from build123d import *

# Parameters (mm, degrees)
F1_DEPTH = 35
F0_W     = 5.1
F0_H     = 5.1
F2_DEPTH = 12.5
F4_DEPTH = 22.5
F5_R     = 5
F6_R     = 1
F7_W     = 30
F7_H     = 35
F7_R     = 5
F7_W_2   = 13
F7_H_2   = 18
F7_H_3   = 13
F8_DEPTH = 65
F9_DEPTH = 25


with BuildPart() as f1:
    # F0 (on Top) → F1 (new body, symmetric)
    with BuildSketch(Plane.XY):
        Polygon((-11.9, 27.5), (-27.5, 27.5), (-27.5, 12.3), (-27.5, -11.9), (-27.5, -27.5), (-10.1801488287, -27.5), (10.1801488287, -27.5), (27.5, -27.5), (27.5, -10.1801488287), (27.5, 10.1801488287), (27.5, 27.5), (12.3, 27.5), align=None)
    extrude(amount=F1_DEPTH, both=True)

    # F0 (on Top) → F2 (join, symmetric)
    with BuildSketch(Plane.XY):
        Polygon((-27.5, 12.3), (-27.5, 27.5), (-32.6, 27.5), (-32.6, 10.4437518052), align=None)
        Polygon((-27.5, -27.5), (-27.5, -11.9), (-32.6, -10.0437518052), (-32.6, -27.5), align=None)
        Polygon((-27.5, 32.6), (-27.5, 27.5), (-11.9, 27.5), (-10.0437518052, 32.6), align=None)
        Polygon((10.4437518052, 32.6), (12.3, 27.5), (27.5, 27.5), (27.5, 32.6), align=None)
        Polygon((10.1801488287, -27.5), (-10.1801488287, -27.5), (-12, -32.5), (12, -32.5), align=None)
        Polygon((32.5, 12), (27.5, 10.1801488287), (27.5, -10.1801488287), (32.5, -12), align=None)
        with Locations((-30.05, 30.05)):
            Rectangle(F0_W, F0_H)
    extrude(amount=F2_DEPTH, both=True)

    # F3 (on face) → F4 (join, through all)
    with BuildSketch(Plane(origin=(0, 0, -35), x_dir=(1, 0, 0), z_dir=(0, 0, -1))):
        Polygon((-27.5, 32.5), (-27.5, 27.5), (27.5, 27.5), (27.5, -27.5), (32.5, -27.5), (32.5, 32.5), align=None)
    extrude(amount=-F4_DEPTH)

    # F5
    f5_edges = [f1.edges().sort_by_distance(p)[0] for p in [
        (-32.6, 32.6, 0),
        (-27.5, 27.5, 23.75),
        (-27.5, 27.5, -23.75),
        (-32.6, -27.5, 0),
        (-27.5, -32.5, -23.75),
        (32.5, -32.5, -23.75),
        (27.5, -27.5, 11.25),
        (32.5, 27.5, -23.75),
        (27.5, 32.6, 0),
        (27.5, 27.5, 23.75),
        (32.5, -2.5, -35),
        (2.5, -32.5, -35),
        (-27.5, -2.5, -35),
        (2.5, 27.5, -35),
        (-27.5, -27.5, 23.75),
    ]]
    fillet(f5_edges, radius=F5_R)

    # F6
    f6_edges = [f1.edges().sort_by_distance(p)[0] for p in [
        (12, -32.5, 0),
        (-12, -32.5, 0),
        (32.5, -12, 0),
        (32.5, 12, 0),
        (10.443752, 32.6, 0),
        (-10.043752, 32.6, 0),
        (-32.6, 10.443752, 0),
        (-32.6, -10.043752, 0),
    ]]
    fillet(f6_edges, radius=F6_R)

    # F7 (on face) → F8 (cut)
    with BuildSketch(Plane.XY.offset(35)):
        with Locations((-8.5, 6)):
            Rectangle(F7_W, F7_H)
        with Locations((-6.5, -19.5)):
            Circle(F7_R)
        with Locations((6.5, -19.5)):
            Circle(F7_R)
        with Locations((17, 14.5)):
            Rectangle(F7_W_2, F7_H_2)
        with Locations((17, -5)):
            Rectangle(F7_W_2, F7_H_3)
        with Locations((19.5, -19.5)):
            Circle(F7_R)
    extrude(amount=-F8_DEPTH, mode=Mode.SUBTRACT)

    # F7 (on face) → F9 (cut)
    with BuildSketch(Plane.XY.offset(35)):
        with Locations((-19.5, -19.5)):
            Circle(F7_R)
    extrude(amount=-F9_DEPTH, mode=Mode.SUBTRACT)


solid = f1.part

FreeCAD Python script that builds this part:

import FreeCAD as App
import Part
import Sketcher

V = App.Vector
Q = App.Units.Quantity


def edges_at(feature, points):
    """Names of the edges that pass closest to the given points."""
    edges = feature.Shape.Edges
    near = lambda p: min(range(len(edges)), key=lambda i: edges[i].distToShape(Part.Vertex(*p))[0])
    return sorted({f"Edge{near(p) + 1}" for p in points})

doc = App.newDocument("Part")
body = doc.addObject("PartDesign::Body", "Body")

# Sketch on XY plane
sketch1 = doc.addObject("Sketcher::SketchObject", "Sketch")
body.addObject(sketch1)
sketch1.AttachmentSupport = (doc.XY_Plane, [""])
sketch1.MapMode = "FlatFace"
sketch1.addGeometry(Part.LineSegment(V(-28, 28, 0), V(-28, -28, 0)), False)
sketch1.addGeometry(Part.LineSegment(V(-28, -28, 0), V(28, -28, 0)), False)
sketch1.addGeometry(Part.LineSegment(V(28, -28, 0), V(28, 28, 0)), False)
sketch1.addGeometry(Part.LineSegment(V(28, 28, 0), V(-28, 28, 0)), False)
sketch1.addConstraint(Sketcher.Constraint("Coincident", 0, 2, 1, 1))
sketch1.addConstraint(Sketcher.Constraint("Coincident", 1, 2, 2, 1))
sketch1.addConstraint(Sketcher.Constraint("Coincident", 2, 2, 3, 1))
sketch1.addConstraint(Sketcher.Constraint("Coincident", 3, 2, 0, 1))
sketch1.addConstraint(Sketcher.Constraint("Vertical", 0))
sketch1.addConstraint(Sketcher.Constraint("Horizontal", 1))
sketch1.addConstraint(Sketcher.Constraint("Vertical", 2))
sketch1.addConstraint(Sketcher.Constraint("Horizontal", 3))
sketch1.addConstraint(Sketcher.Constraint("Symmetric", 0, 2, 2, 2, -1, 1))
sketch1.addConstraint(Sketcher.Constraint("Equal", 3, 0))
sketch1.addConstraint(Sketcher.Constraint("DistanceX", 1, 1, 1, 2, Q("55 mm")))
pad1 = doc.addObject("PartDesign::Pad", "Pad")
body.addObject(pad1)
pad1.Profile = sketch1
pad1.Length = 70
pad1.Midplane = True

# Sketch on XY plane
sketch2 = doc.addObject("Sketcher::SketchObject", "Sketch001")
body.addObject(sketch2)
sketch2.AttachmentSupport = (doc.XY_Plane, [""])
sketch2.MapMode = "FlatFace"
sketch2.addGeometry(Part.LineSegment(V(-28, 12, 0), V(-28, 28, 0)), False)
sketch2.addGeometry(Part.LineSegment(V(-28, 28, 0), V(-12, 28, 0)), False)
sketch2.addGeometry(Part.LineSegment(V(-12, 28, 0), V(-10, 33, 0)), False)
sketch2.addGeometry(Part.LineSegment(V(-10, 33, 0), V(-33, 33, 0)), False)
sketch2.addGeometry(Part.LineSegment(V(-33, 33, 0), V(-33, 10, 0)), False)
sketch2.addGeometry(Part.LineSegment(V(-33, 10, 0), V(-28, 12, 0)), False)
sketch2.addGeometry(Part.LineSegment(V(-28, -28, 0), V(-28, -12, 0)), False)
sketch2.addGeometry(Part.LineSegment(V(-28, -12, 0), V(-33, -10, 0)), False)
sketch2.addGeometry(Part.LineSegment(V(-33, -10, 0), V(-33, -28, 0)), False)
sketch2.addGeometry(Part.LineSegment(V(-33, -28, 0), V(-28, -28, 0)), False)
sketch2.addGeometry(Part.LineSegment(V(10, 33, 0), V(12, 28, 0)), False)
sketch2.addGeometry(Part.LineSegment(V(12, 28, 0), V(28, 28, 0)), False)
sketch2.addGeometry(Part.LineSegment(V(28, 28, 0), V(28, 33, 0)), False)
sketch2.addGeometry(Part.LineSegment(V(28, 33, 0), V(10, 33, 0)), False)
sketch2.addGeometry(Part.LineSegment(V(10, -28, 0), V(-10, -28, 0)), False)
sketch2.addGeometry(Part.LineSegment(V(-10, -28, 0), V(-12, -32, 0)), False)
sketch2.addGeometry(Part.LineSegment(V(-12, -32, 0), V(12, -32, 0)), False)
sketch2.addGeometry(Part.LineSegment(V(12, -32, 0), V(10, -28, 0)), False)
sketch2.addGeometry(Part.LineSegment(V(32, 12, 0), V(28, 10, 0)), False)
sketch2.addGeometry(Part.LineSegment(V(28, 10, 0), V(28, -10, 0)), False)
sketch2.addGeometry(Part.LineSegment(V(28, -10, 0), V(32, -12, 0)), False)
sketch2.addGeometry(Part.LineSegment(V(32, -12, 0), V(32, 12, 0)), False)
sketch2.addConstraint(Sketcher.Constraint("Coincident", 0, 2, 1, 1))
sketch2.addConstraint(Sketcher.Constraint("Coincident", 1, 2, 2, 1))
sketch2.addConstraint(Sketcher.Constraint("Coincident", 2, 2, 3, 1))
sketch2.addConstraint(Sketcher.Constraint("Coincident", 3, 2, 4, 1))
sketch2.addConstraint(Sketcher.Constraint("Coincident", 4, 2, 5, 1))
sketch2.addConstraint(Sketcher.Constraint("Coincident", 5, 2, 0, 1))
sketch2.addConstraint(Sketcher.Constraint("Coincident", 6, 2, 7, 1))
sketch2.addConstraint(Sketcher.Constraint("Coincident", 7, 2, 8, 1))
sketch2.addConstraint(Sketcher.Constraint("Coincident", 8, 2, 9, 1))
sketch2.addConstraint(Sketcher.Constraint("Coincident", 9, 2, 6, 1))
sketch2.addConstraint(Sketcher.Constraint("Coincident", 10, 2, 11, 1))
sketch2.addConstraint(Sketcher.Constraint("Coincident", 11, 2, 12, 1))
sketch2.addConstraint(Sketcher.Constraint("Coincident", 12, 2, 13, 1))
sketch2.addConstraint(Sketcher.Constraint("Coincident", 13, 2, 10, 1))
sketch2.addConstraint(Sketcher.Constraint("Coincident", 14, 2, 15, 1))
sketch2.addConstraint(Sketcher.Constraint("Coincident", 15, 2, 16, 1))
sketch2.addConstraint(Sketcher.Constraint("Coincident", 16, 2, 17, 1))
sketch2.addConstraint(Sketcher.Constraint("Coincident", 17, 2, 14, 1))
sketch2.addConstraint(Sketcher.Constraint("Coincident", 18, 2, 19, 1))
sketch2.addConstraint(Sketcher.Constraint("Coincident", 19, 2, 20, 1))
sketch2.addConstraint(Sketcher.Constraint("Coincident", 20, 2, 21, 1))
sketch2.addConstraint(Sketcher.Constraint("Coincident", 21, 2, 18, 1))
sketch2.addConstraint(Sketcher.Constraint("Vertical", 0))
sketch2.addConstraint(Sketcher.Constraint("Horizontal", 1))
sketch2.addConstraint(Sketcher.Constraint("Horizontal", 3))
sketch2.addConstraint(Sketcher.Constraint("Vertical", 4))
sketch2.addConstraint(Sketcher.Constraint("Vertical", 6))
sketch2.addConstraint(Sketcher.Constraint("Vertical", 8))
sketch2.addConstraint(Sketcher.Constraint("Horizontal", 9))
sketch2.addConstraint(Sketcher.Constraint("Horizontal", 11))
sketch2.addConstraint(Sketcher.Constraint("Vertical", 12))
sketch2.addConstraint(Sketcher.Constraint("Horizontal", 13))
sketch2.addConstraint(Sketcher.Constraint("Horizontal", 14))
sketch2.addConstraint(Sketcher.Constraint("Horizontal", 16))
sketch2.addConstraint(Sketcher.Constraint("Vertical", 19))
sketch2.addConstraint(Sketcher.Constraint("Vertical", 21))
sketch2.addConstraint(Sketcher.Constraint("Symmetric", 9, 2, 11, 2, -1, 1))
sketch2.addConstraint(Sketcher.Constraint("Symmetric", 0, 2, 11, 2, -2))
sketch2.addConstraint(Sketcher.Constraint("Perpendicular", 2, 7))
sketch2.addConstraint(Sketcher.Constraint("Perpendicular", 5, 10))
sketch2.addConstraint(Sketcher.Constraint("Perpendicular", 7, 15))
sketch2.addConstraint(Sketcher.Constraint("Parallel", 10, 17))
sketch2.addConstraint(Sketcher.Constraint("Perpendicular", 17, 18))
sketch2.addConstraint(Sketcher.Constraint("Perpendicular", 15, 20))
sketch2.addConstraint(Sketcher.Constraint("Horizontal", 3, 2, 12, 2))
sketch2.addConstraint(Sketcher.Constraint("Horizontal", 9, 2, 14, 2))
sketch2.addConstraint(Sketcher.Constraint("Vertical", 4, 2, 7, 2))
sketch2.addConstraint(Sketcher.Constraint("Vertical", 12, 2, 18, 2))
sketch2.addConstraint(Sketcher.Constraint("Equal", 11, 0))
sketch2.addConstraint(Sketcher.Constraint("Equal", 1, 6))
sketch2.addConstraint(Sketcher.Constraint("Equal", 9, 12))
sketch2.addConstraint(Sketcher.Constraint("Equal", 14, 19))
sketch2.addConstraint(Sketcher.Constraint("Equal", 16, 21))
sketch2.addConstraint(Sketcher.Constraint("Equal", 2, 5))
sketch2.addConstraint(Sketcher.Constraint("DistanceX", 16, 1, 16, 2, Q("24 mm")))
sketch2.addConstraint(Sketcher.Constraint("Angle", 2, Q("70 deg")))
sketch2.addConstraint(Sketcher.Constraint("DistanceX", 1, 1, 1, 2, Q("15.6 mm")))
sketch2.addConstraint(Sketcher.Constraint("DistanceX", 9, 1, 9, 2, Q("5.1 mm")))
sketch2.addConstraint(Sketcher.Constraint("DistanceX", 11, 1, 11, 2, Q("15.2 mm")))
sketch2.addConstraint(Sketcher.Constraint("DistanceX", 15, 2, -1, 1, Q("12 mm")))
sketch2.addConstraint(Sketcher.Constraint("DistanceY", 20, 2, -1, 1, Q("12 mm")))
sketch2.addConstraint(Sketcher.Constraint("DistanceY", 8, 2, 0, 2, Q("55 mm")))
sketch2.addConstraint(Sketcher.Constraint("DistanceX", 0, 2, 11, 2, Q("55 mm")))
sketch2.addConstraint(Sketcher.Constraint("DistanceY", 15, 2, 14, 2, Q("5 mm")))
pad2 = doc.addObject("PartDesign::Pad", "Pad001")
body.addObject(pad2)
pad2.Profile = sketch2
pad2.Length = 25
pad2.Midplane = True

# Sketch on XY plane
sketch3 = doc.addObject("Sketcher::SketchObject", "Sketch002")
body.addObject(sketch3)
sketch3.AttachmentSupport = (doc.XY_Plane, [""])
sketch3.MapMode = "FlatFace"
sketch3.AttachmentOffset = App.Placement(V(0, 0, -35), App.Rotation())
sketch3.addGeometry(Part.LineSegment(V(-28, -32, 0), V(-28, -28, 0)), False)
sketch3.addGeometry(Part.LineSegment(V(-28, -28, 0), V(28, -28, 0)), False)
sketch3.addGeometry(Part.LineSegment(V(28, -28, 0), V(28, 28, 0)), False)
sketch3.addGeometry(Part.LineSegment(V(28, 28, 0), V(32, 28, 0)), False)
sketch3.addGeometry(Part.LineSegment(V(32, 28, 0), V(32, -32, 0)), False)
sketch3.addGeometry(Part.LineSegment(V(32, -32, 0), V(-28, -32, 0)), False)
sketch3.addConstraint(Sketcher.Constraint("Coincident", 0, 2, 1, 1))
sketch3.addConstraint(Sketcher.Constraint("Coincident", 1, 2, 2, 1))
sketch3.addConstraint(Sketcher.Constraint("Coincident", 2, 2, 3, 1))
sketch3.addConstraint(Sketcher.Constraint("Coincident", 3, 2, 4, 1))
sketch3.addConstraint(Sketcher.Constraint("Coincident", 4, 2, 5, 1))
sketch3.addConstraint(Sketcher.Constraint("Coincident", 5, 2, 0, 1))
sketch3.addConstraint(Sketcher.Constraint("Vertical", 0))
sketch3.addConstraint(Sketcher.Constraint("Horizontal", 1))
sketch3.addConstraint(Sketcher.Constraint("Vertical", 2))
sketch3.addConstraint(Sketcher.Constraint("Horizontal", 3))
sketch3.addConstraint(Sketcher.Constraint("Vertical", 4))
sketch3.addConstraint(Sketcher.Constraint("Horizontal", 5))
sketch3.addConstraint(Sketcher.Constraint("Symmetric", 0, 2, 2, 2, -1, 1))
sketch3.addConstraint(Sketcher.Constraint("Equal", 3, 0))
sketch3.addConstraint(Sketcher.Constraint("Equal", 1, 2))
sketch3.addConstraint(Sketcher.Constraint("DistanceX", 1, 1, 1, 2, Q("55 mm")))
sketch3.addConstraint(Sketcher.Constraint("DistanceX", 3, 1, 3, 2, Q("5 mm")))
pad3 = doc.addObject("PartDesign::Pad", "Pad002")
body.addObject(pad3)
pad3.Profile = sketch3
pad3.Length = 22.5
doc.recompute()

fillet = doc.addObject("PartDesign::Fillet", "Fillet")
body.addObject(fillet)
fillet.Base = (pad3, edges_at(pad3, [
    (-32.6, 32.6, 0),
    (-27.5, 27.5, 23.75),
    (-27.5, 27.5, -23.75),
    (-32.6, -27.5, 0),
    (-27.5, -32.5, -23.75),
    (32.5, -32.5, -23.75),
    (27.5, -27.5, 11.25),
    (32.5, 27.5, -23.75),
    (27.5, 32.6, 0),
    (27.5, 27.5, 23.75),
    (32.5, -2.5, -35),
    (2.5, -32.5, -35),
    (-27.5, -2.5, -35),
    (2.5, 27.5, -35),
    (-27.5, -27.5, 23.75),
]))
fillet.Radius = 5
doc.recompute()

fillet2 = doc.addObject("PartDesign::Fillet", "Fillet001")
body.addObject(fillet2)
fillet2.Base = (fillet, edges_at(fillet, [
    (12, -32.5, 0),
    (-12, -32.5, 0),
    (32.5, -12, 0),
    (32.5, 12, 0),
    (10.444, 32.6, 0),
    (-10.044, 32.6, 0),
    (-32.6, 10.444, 0),
    (-32.6, -10.044, 0),
]))
fillet2.Radius = 1

# Sketch on XY plane
sketch4 = doc.addObject("Sketcher::SketchObject", "Sketch003")
body.addObject(sketch4)
sketch4.AttachmentSupport = (doc.XY_Plane, [""])
sketch4.MapMode = "FlatFace"
sketch4.AttachmentOffset = App.Placement(V(0, 0, 35), App.Rotation())
sketch4.addGeometry(Part.LineSegment(V(-24, 24, 0), V(-24, -12, 0)), False)
sketch4.addGeometry(Part.LineSegment(V(-24, -12, 0), V(6, -12, 0)), False)
sketch4.addGeometry(Part.LineSegment(V(6, -12, 0), V(6, 24, 0)), False)
sketch4.addGeometry(Part.LineSegment(V(6, 24, 0), V(-24, 24, 0)), False)
sketch4.addGeometry(Part.Circle(V(-6, -20, 0), V(0, 0, 1), 5), False)
sketch4.addGeometry(Part.Circle(V(6, -20, 0), V(0, 0, 1), 5), False)
sketch4.addGeometry(Part.LineSegment(V(10, 24, 0), V(10, 6, 0)), False)
sketch4.addGeometry(Part.LineSegment(V(10, 6, 0), V(24, 6, 0)), False)
sketch4.addGeometry(Part.LineSegment(V(24, 6, 0), V(24, 24, 0)), False)
sketch4.addGeometry(Part.LineSegment(V(24, 24, 0), V(10, 24, 0)), False)
sketch4.addGeometry(Part.LineSegment(V(10, 2, 0), V(10, -12, 0)), False)
sketch4.addGeometry(Part.LineSegment(V(10, -12, 0), V(24, -12, 0)), False)
sketch4.addGeometry(Part.LineSegment(V(24, -12, 0), V(24, 2, 0)), False)
sketch4.addGeometry(Part.LineSegment(V(24, 2, 0), V(10, 2, 0)), False)
sketch4.addGeometry(Part.Circle(V(20, -20, 0), V(0, 0, 1), 5), False)
sketch4.addConstraint(Sketcher.Constraint("Coincident", 0, 2, 1, 1))
sketch4.addConstraint(Sketcher.Constraint("Coincident", 1, 2, 2, 1))
sketch4.addConstraint(Sketcher.Constraint("Coincident", 2, 2, 3, 1))
sketch4.addConstraint(Sketcher.Constraint("Coincident", 3, 2, 0, 1))
sketch4.addConstraint(Sketcher.Constraint("Coincident", 6, 2, 7, 1))
sketch4.addConstraint(Sketcher.Constraint("Coincident", 7, 2, 8, 1))
sketch4.addConstraint(Sketcher.Constraint("Coincident", 8, 2, 9, 1))
sketch4.addConstraint(Sketcher.Constraint("Coincident", 9, 2, 6, 1))
sketch4.addConstraint(Sketcher.Constraint("Coincident", 10, 2, 11, 1))
sketch4.addConstraint(Sketcher.Constraint("Coincident", 11, 2, 12, 1))
sketch4.addConstraint(Sketcher.Constraint("Coincident", 12, 2, 13, 1))
sketch4.addConstraint(Sketcher.Constraint("Coincident", 13, 2, 10, 1))
sketch4.addConstraint(Sketcher.Constraint("Vertical", 0))
sketch4.addConstraint(Sketcher.Constraint("Horizontal", 1))
sketch4.addConstraint(Sketcher.Constraint("Vertical", 2))
sketch4.addConstraint(Sketcher.Constraint("Horizontal", 3))
sketch4.addConstraint(Sketcher.Constraint("Vertical", 6))
sketch4.addConstraint(Sketcher.Constraint("Horizontal", 7))
sketch4.addConstraint(Sketcher.Constraint("Vertical", 8))
sketch4.addConstraint(Sketcher.Constraint("Horizontal", 9))
sketch4.addConstraint(Sketcher.Constraint("Vertical", 10))
sketch4.addConstraint(Sketcher.Constraint("Horizontal", 11))
sketch4.addConstraint(Sketcher.Constraint("Vertical", 12))
sketch4.addConstraint(Sketcher.Constraint("Horizontal", 13))
sketch4.addConstraint(Sketcher.Constraint("Equal", 4, 5))
sketch4.addConstraint(Sketcher.Constraint("Equal", 5, 14))
sketch4.addConstraint(Sketcher.Constraint("Symmetric", 4, 3, 5, 3, -2))
sketch4.addConstraint(Sketcher.Constraint("Symmetric", 3, 2, 8, 2, -2))
sketch4.addConstraint(Sketcher.Constraint("Symmetric", 0, 2, 11, 2, -2))
sketch4.addConstraint(Sketcher.Constraint("Horizontal", 5, 3, 14, 3))
sketch4.addConstraint(Sketcher.Constraint("Vertical", 5, 3, 1, 2))
sketch4.addConstraint(Sketcher.Constraint("Vertical", 9, 2, 10, 2))
sketch4.addConstraint(Sketcher.Constraint("Equal", 13, 10))
sketch4.addConstraint(Sketcher.Constraint("Diameter", 4, Q("10 mm")))
sketch4.addConstraint(Sketcher.Constraint("DistanceX", 1, 1, 1, 2, Q("30 mm")))
sketch4.addConstraint(Sketcher.Constraint("DistanceX", 7, 1, 7, 2, Q("13 mm")))
sketch4.addConstraint(Sketcher.Constraint("DistanceY", 0, 2, 0, 1, Q("35 mm")))
sketch4.addConstraint(Sketcher.Constraint("DistanceY", 6, 2, 6, 1, Q("18 mm")))
sketch4.addConstraint(Sketcher.Constraint("DistanceX", 4, 3, 5, 3, Q("13 mm")))
sketch4.addConstraint(Sketcher.Constraint("DistanceX", 5, 3, 14, 3, Q("13 mm")))
sketch4.addConstraint(Sketcher.Constraint("DistanceY", 4, 3, 0, 2, Q("8 mm")))
sketch4.addConstraint(Sketcher.Constraint("DistanceY", 4, 3, -1, 1, Q("19.5 mm")))
pocket1 = doc.addObject("PartDesign::Pocket", "Pocket")
body.addObject(pocket1)
pocket1.Profile = sketch4
pocket1.Length = 65

# Sketch on XY plane
sketch5 = doc.addObject("Sketcher::SketchObject", "Sketch004")
body.addObject(sketch5)
sketch5.AttachmentSupport = (doc.XY_Plane, [""])
sketch5.MapMode = "FlatFace"
sketch5.AttachmentOffset = App.Placement(V(0, 0, 35), App.Rotation())
sketch5.addGeometry(Part.Circle(V(-20, -20, 0), V(0, 0, 1), 5), False)
sketch5.addConstraint(Sketcher.Constraint("Diameter", 0, Q("10 mm")))
sketch5.addConstraint(Sketcher.Constraint("DistanceX", 0, 3, -1, 1, Q("19.5 mm")))
sketch5.addConstraint(Sketcher.Constraint("DistanceY", 0, 3, -1, 1, Q("19.5 mm")))
pocket2 = doc.addObject("PartDesign::Pocket", "Pocket001")
body.addObject(pocket2)
pocket2.Profile = sketch5
pocket2.Length = 25

doc.recompute()
